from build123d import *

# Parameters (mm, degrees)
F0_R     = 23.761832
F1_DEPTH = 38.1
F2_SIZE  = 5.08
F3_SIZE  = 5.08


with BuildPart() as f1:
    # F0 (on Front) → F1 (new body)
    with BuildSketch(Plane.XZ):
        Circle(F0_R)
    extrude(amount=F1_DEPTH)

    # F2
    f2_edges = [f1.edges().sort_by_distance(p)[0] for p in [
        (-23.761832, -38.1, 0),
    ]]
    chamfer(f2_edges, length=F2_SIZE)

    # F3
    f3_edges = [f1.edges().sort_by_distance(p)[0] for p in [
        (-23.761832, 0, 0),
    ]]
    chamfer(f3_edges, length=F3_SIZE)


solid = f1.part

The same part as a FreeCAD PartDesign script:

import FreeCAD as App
import Part
import Sketcher
from FreeCAD import Vector
Q = App.Units.Quantity


def edges_at(feature, points):
    """Names of the edges that pass closest to the given points."""
    edges = feature.Shape.Edges
    near = lambda p: min(range(len(edges)), key=lambda i: edges[i].distToShape(Part.Vertex(*p))[0])
    return sorted({f"Edge{near(p) + 1}" for p in points})

doc = App.newDocument("Part")
params = doc.addObject("Spreadsheet::Sheet", "Params")
for row, (alias, value) in enumerate([
    ("pad1_length", "1.5 in"),
    ("chamfer_size", "0.2 in"),
    ("chamfer2_size", "0.2 in"),
], start=1):
    params.set(f"A{row}", alias)
    params.set(f"B{row}", "=" + value)
    params.setAlias(f"B{row}", alias)

body = doc.addObject("PartDesign::Body", "Body")

sketch1 = body.newObject("Sketcher::SketchObject", "Sketch")
sketch1.AttachmentSupport = (doc.getObject("XZ_Plane"), [""])
sketch1.MapMode = "FlatFace"
sketch1.addGeometry(Part.Circle(Vector(0, 0, 0), Vector(0, 0, 1), 23.761832), False)
sketch1.addConstraint([
    Sketcher.Constraint("Coincident", 0, 3, -1, 1),
    Sketcher.Constraint("Diameter", 0, Q("47.523664 mm")),
])
pad1 = body.newObject("PartDesign::Pad", "Pad")
pad1.Profile = sketch1
pad1.setExpression("Length", "Params.pad1_length")
doc.recompute()

chamfer = body.newObject("PartDesign::Chamfer", "Chamfer")
chamfer.Base = (pad1, edges_at(pad1, [(-23.762, -38.1, 0)]))
chamfer.setExpression("Size", "Params.chamfer_size")
doc.recompute()

chamfer2 = body.newObject("PartDesign::Chamfer", "Chamfer001")
chamfer2.Base = (chamfer, edges_at(chamfer, [(-23.762, 0, 0)]))
chamfer2.setExpression("Size", "Params.chamfer2_size")

doc.recompute()
